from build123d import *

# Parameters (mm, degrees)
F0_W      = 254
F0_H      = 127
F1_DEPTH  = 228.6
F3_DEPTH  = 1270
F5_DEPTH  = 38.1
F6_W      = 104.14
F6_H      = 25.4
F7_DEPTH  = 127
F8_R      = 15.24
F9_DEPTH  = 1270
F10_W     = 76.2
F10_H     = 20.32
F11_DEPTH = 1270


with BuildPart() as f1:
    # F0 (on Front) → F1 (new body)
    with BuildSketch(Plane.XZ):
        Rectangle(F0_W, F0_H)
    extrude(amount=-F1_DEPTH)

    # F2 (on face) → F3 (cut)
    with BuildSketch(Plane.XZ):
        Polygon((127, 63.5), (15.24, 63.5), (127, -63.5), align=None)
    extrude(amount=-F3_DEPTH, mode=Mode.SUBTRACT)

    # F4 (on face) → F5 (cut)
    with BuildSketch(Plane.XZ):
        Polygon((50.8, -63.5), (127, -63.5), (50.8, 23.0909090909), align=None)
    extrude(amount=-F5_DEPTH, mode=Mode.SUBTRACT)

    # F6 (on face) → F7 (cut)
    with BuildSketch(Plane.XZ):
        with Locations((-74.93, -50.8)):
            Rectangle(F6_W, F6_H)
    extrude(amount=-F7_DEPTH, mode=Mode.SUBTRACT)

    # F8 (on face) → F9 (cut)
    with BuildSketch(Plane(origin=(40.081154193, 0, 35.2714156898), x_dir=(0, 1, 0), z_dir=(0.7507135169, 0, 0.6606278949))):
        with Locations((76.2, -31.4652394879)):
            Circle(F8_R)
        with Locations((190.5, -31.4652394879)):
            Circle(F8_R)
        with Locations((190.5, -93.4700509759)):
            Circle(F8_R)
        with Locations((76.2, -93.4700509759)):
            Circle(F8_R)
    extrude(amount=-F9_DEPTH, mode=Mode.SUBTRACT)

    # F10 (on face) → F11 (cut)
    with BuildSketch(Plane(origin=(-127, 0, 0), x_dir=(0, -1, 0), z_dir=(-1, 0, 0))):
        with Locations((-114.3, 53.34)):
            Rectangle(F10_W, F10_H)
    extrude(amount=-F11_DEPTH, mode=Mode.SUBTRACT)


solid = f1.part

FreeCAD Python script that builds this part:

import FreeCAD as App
import Part
import Sketcher
Q = App.Units.Quantity


def add_polygon(sketch, points):
    """Adds a closed chain of lines whose ends are joined by coincident constraints."""
    first, n = sketch.GeometryCount, len(points)
    for a, b in zip(points, points[1:] + points[:1]):
        sketch.addGeometry(Part.LineSegment(App.Vector(*a, 0), App.Vector(*b, 0)), False)
    for i in range(n):
        sketch.addConstraint(Sketcher.Constraint("Coincident", first + i, 2, first + (i + 1) % n, 1))

doc = App.newDocument("Part")
params = doc.addObject("Spreadsheet::Sheet", "Params")
for row, (alias, value) in enumerate([
    ("sketch1_width", "10 in"),
    ("sketch1_height", "5 in"),
    ("pad1_length", "9 in"),
    ("sketch2_height", "5 in"),
    ("sketch2_width", "4.4 in"),
    ("pocket1_length", "50 in"),
    ("sketch3_width", "3 in"),
    ("pocket2_length", "1.5 in"),
    ("sketch4_height", "1 in"),
    ("sketch4_width", "4.1 in"),
    ("pocket3_length", "5 in"),
    ("sketch5_diameter", "1.2 in"),
    ("pocket4_length", "50 in"),
    ("sketch6_width", "3 in"),
    ("sketch6_height", "0.8 in"),
    ("pocket5_length", "50 in"),
], start=1):
    params.set(f"A{row}", alias)
    params.set(f"B{row}", "=" + value)
    params.setAlias(f"B{row}", alias)

body = doc.addObject("PartDesign::Body", "Body")

sketch1 = doc.addObject("Sketcher::SketchObject", "Sketch")
body.addObject(sketch1)
sketch1.AttachmentSupport = (doc.XZ_Plane, [""])
sketch1.MapMode = "FlatFace"
add_polygon(sketch1, [(-127, 63.5), (-127, -63.5), (127, -63.5), (127, 63.5)])
sketch1.addConstraint([
    Sketcher.Constraint("Vertical", 0),
    Sketcher.Constraint("Horizontal", 1),
    Sketcher.Constraint("Vertical", 2),
    Sketcher.Constraint("Horizontal", 3),
    Sketcher.Constraint("Symmetric", 0, 2, 2, 2, -1, 1),
    Sketcher.Constraint("DistanceX", 1, 1, 1, 2, Q("10 in")),
    Sketcher.Constraint("DistanceY", 0, 2, 0, 1, Q("5 in")),
])
sketch1.setExpression("Constraints[9]", "Params.sketch1_width")
sketch1.setExpression("Constraints[10]", "Params.sketch1_height")
pad1 = doc.addObject("PartDesign::Pad", "Pad")
body.addObject(pad1)
pad1.Profile = sketch1
pad1.setExpression("Length", "Params.pad1_length")
pad1.Reversed = True

sketch2 = doc.addObject("Sketcher::SketchObject", "Sketch001")
body.addObject(sketch2)
sketch2.AttachmentSupport = (doc.XZ_Plane, [""])
sketch2.MapMode = "FlatFace"
add_polygon(sketch2, [(127, 63.5), (15.24, 63.5), (127, -63.5)])
sketch2.addConstraint([
    Sketcher.Constraint("Horizontal", 0),
    Sketcher.Constraint("Vertical", 2),
    Sketcher.Constraint("DistanceY", 2, 1, 2, 2, Q("5 in")),
    Sketcher.Constraint("DistanceX", 0, 2, 0, 1, Q("4.4 in")),
    Sketcher.Constraint("DistanceX", -1, 1, 1, 2, Q("5 in")),
    Sketcher.Constraint("DistanceY", -1, 1, 0, 2, Q("2.5 in")),
])
sketch2.setExpression("Constraints[5]", "Params.sketch2_height")
sketch2.setExpression("Constraints[6]", "Params.sketch2_width")
pocket1 = doc.addObject("PartDesign::Pocket", "Pocket")
body.addObject(pocket1)
pocket1.Profile = sketch2
pocket1.setExpression("Length", "Params.pocket1_length")

sketch3 = doc.addObject("Sketcher::SketchObject", "Sketch002")
body.addObject(sketch3)
sketch3.AttachmentSupport = (doc.XZ_Plane, [""])
sketch3.MapMode = "FlatFace"
add_polygon(sketch3, [(50.8, -63.5), (127, -63.5), (50.8, 23.090909)])
sketch3.addConstraint([
    Sketcher.Constraint("Horizontal", 0),
    Sketcher.Constraint("Vertical", 2),
    Sketcher.Constraint("DistanceX", 0, 1, 0, 2, Q("3 in")),
    Sketcher.Constraint("DistanceX", -1, 1, 0, 2, Q("5 in")),
    Sketcher.Constraint("DistanceY", 0, 2, -1, 1, Q("2.5 in")),
    Sketcher.Constraint("DistanceY", 2, 2, 2, 1, 86.590909),
])
sketch3.setExpression("Constraints[5]", "Params.sketch3_width")
pocket2 = doc.addObject("PartDesign::Pocket", "Pocket001")
body.addObject(pocket2)
pocket2.Profile = sketch3
pocket2.setExpression("Length", "Params.pocket2_length")

sketch4 = doc.addObject("Sketcher::SketchObject", "Sketch003")
body.addObject(sketch4)
sketch4.AttachmentSupport = (doc.XZ_Plane, [""])
sketch4.MapMode = "FlatFace"
add_polygon(sketch4, [(-127, -38.1), (-127, -63.5), (-22.86, -63.5), (-22.86, -38.1)])
sketch4.addConstraint([
    Sketcher.Constraint("Vertical", 0),
    Sketcher.Constraint("Horizontal", 1),
    Sketcher.Constraint("Vertical", 2),
    Sketcher.Constraint("Horizontal", 3),
    Sketcher.Constraint("DistanceY", 0, 2, 0, 1, Q("1 in")),
    Sketcher.Constraint("DistanceX", 1, 1, 1, 2, Q("4.1 in")),
    Sketcher.Constraint("DistanceX", 0, 2, -1, 1, Q("5 in")),
    Sketcher.Constraint("DistanceY", 0, 2, -1, 1, Q("2.5 in")),
])
sketch4.setExpression("Constraints[8]", "Params.sketch4_height")
sketch4.setExpression("Constraints[9]", "Params.sketch4_width")
pocket3 = doc.addObject("PartDesign::Pocket", "Pocket002")
body.addObject(pocket3)
pocket3.Profile = sketch4
pocket3.setExpression("Length", "Params.pocket3_length")

sketch5 = doc.addObject("Sketcher::SketchObject", "Sketch004")
body.addObject(sketch5)
sketch5.Placement = App.Placement(App.Vector(40.081154, 0, 35.271416), App.Rotation(App.Vector(0, 1, 0), App.Vector(-0.660627895, 0, 0.750713517), App.Vector(0.750713517, 0, 0.660627895), "ZXY"))
sketch5.addGeometry([
    Part.Circle(App.Vector(76.2, -31.465239, 0), App.Vector(0, 0, 1), 15.24),
    Part.Circle(App.Vector(190.5, -31.465239, 0), App.Vector(0, 0, 1), 15.24),
    Part.Circle(App.Vector(190.5, -93.470051, 0), App.Vector(0, 0, 1), 15.24),
    Part.Circle(App.Vector(76.2, -93.470051, 0), App.Vector(0, 0, 1), 15.24),
], False)
sketch5.addConstraint([
    Sketcher.Constraint("Equal", 0, 1),
    Sketcher.Constraint("Equal", 1, 2),
    Sketcher.Constraint("Equal", 2, 3),
    Sketcher.Constraint("Horizontal", 0, 3, 1, 3),
    Sketcher.Constraint("Horizontal", 2, 3, 3, 3),
    Sketcher.Constraint("Vertical", 1, 3, 2, 3),
    Sketcher.Constraint("Vertical", 0, 3, 3, 3),
    Sketcher.Constraint("Diameter", 0, Q("1.2 in")),
    Sketcher.Constraint("DistanceX", -1, 1, 0, 3, Q("3 in")),
    Sketcher.Constraint("DistanceX", -1, 1, 1, 3, Q("7.5 in")),
    Sketcher.Constraint("DistanceY", 0, 3, -1, 1, 31.465239),
    Sketcher.Constraint("DistanceY", 2, 3, -1, 1, 93.470051),
])
sketch5.setExpression("Constraints[7]", "Params.sketch5_diameter")
pocket4 = doc.addObject("PartDesign::Pocket", "Pocket003")
body.addObject(pocket4)
pocket4.Profile = sketch5
pocket4.setExpression("Length", "Params.pocket4_length")

sketch6 = doc.addObject("Sketcher::SketchObject", "Sketch005")
body.addObject(sketch6)
sketch6.AttachmentSupport = (doc.YZ_Plane, [""])
sketch6.MapMode = "FlatFace"
sketch6.AttachmentOffset = App.Placement(App.Vector(0, 0, -5 * 25.4), App.Rotation())
add_polygon(sketch6, [(152.4, 63.5), (152.4, 43.18), (76.2, 43.18), (76.2, 63.5)])
sketch6.addConstraint([
    Sketcher.Constraint("Vertical", 0),
    Sketcher.Constraint("Horizontal", 1),
    Sketcher.Constraint("Vertical", 2),
    Sketcher.Constraint("Horizontal", 3),
    Sketcher.Constraint("DistanceX", 1, 2, 1, 1, Q("3 in")),
    Sketcher.Constraint("DistanceY", 0, 2, 0, 1, Q("0.8 in")),
    Sketcher.Constraint("DistanceX", -1, 1, 0, 2, Q("6 in")),
    Sketcher.Constraint("DistanceY", -1, 1, 0, 2, Q("1.7 in")),
])
sketch6.setExpression("Constraints[8]", "Params.sketch6_width")
sketch6.setExpression("Constraints[9]", "Params.sketch6_height")
pocket5 = doc.addObject("PartDesign::Pocket", "Pocket004")
body.addObject(pocket5)
pocket5.Profile = sketch6
pocket5.setExpression("Length", "Params.pocket5_length")
pocket5.Reversed = True

doc.recompute()
